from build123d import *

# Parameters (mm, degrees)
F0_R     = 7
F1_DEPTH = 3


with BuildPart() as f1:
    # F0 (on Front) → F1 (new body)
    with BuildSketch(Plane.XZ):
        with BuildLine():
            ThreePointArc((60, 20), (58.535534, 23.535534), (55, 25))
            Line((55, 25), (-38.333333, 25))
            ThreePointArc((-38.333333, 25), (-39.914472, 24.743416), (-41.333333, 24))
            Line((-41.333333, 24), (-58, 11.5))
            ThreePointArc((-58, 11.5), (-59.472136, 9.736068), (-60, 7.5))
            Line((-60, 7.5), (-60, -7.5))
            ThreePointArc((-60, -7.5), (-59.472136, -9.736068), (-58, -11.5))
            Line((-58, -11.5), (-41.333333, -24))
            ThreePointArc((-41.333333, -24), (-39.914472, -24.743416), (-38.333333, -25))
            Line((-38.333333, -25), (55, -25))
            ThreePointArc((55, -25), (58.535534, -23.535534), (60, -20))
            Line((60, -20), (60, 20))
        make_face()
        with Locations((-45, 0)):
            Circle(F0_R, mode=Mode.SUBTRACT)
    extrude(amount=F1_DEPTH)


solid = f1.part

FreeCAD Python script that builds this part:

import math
import FreeCAD as App
import Part
import Sketcher
from FreeCAD import Vector
Q = App.Units.Quantity

doc = App.newDocument("Part")
body = doc.addObject("PartDesign::Body", "Body")

# Sketch on XZ plane
sketch1 = body.newObject("Sketcher::SketchObject", "Sketch")
sketch1.AttachmentSupport = (doc.getObject("XZ_Plane"), [""])
sketch1.MapMode = "FlatFace"
sketch1.addGeometry(Part.ArcOfCircle(Part.Circle(Vector(55, 20, 0), Vector(0, 0, 1), 5), math.radians(-0.000004), math.radians(90.000004)), False)
sketch1.addGeometry(Part.LineSegment(Vector(55, 25, 0), Vector(-38.333333, 25, 0)), False)
sketch1.addGeometry(Part.ArcOfCircle(Part.Circle(Vector(-38.33333, 19.999992, 0), Vector(0, 0, 1), 5.000008), math.radians(90.000029), math.radians(126.869869)), False)
sketch1.addGeometry(Part.LineSegment(Vector(-41.333333, 24, 0), Vector(-58, 11.5, 0)), False)
sketch1.addGeometry(Part.ArcOfCircle(Part.Circle(Vector(-55, 7.5, 0), Vector(0, 0, 1), 5), math.radians(126.869895), math.radians(180.000002)), False)
sketch1.addGeometry(Part.LineSegment(Vector(-60, 7.5, 0), Vector(-60, -7.5, 0)), False)
sketch1.addGeometry(Part.ArcOfCircle(Part.Circle(Vector(-55, -7.5, 0), Vector(0, 0, 1), 5), math.radians(179.999998), math.radians(233.130105)), False)
sketch1.addGeometry(Part.LineSegment(Vector(-58, -11.5, 0), Vector(-41.333333, -24, 0)), False)
sketch1.addGeometry(Part.ArcOfCircle(Part.Circle(Vector(-38.33333, -19.999992, 0), Vector(0, 0, 1), 5.000008), math.radians(-126.869869), math.radians(-90.000029)), False)
sketch1.addGeometry(Part.LineSegment(Vector(-38.333333, -25, 0), Vector(55, -25, 0)), False)
sketch1.addGeometry(Part.ArcOfCircle(Part.Circle(Vector(55, -20, 0), Vector(0, 0, 1), 5), math.radians(-90.000004), math.radians(0.000004)), False)
sketch1.addGeometry(Part.LineSegment(Vector(60, -20, 0), Vector(60, 20, 0)), False)
sketch1.addGeometry(Part.Circle(Vector(-45, 0, 0), Vector(0, 0, 1), 7), False)
sketch1.addConstraint(Sketcher.Constraint("Tangent", 0, 2, 1, 1))
sketch1.addConstraint(Sketcher.Constraint("Tangent", 1, 2, 2, 1))
sketch1.addConstraint(Sketcher.Constraint("Tangent", 2, 2, 3, 1))
sketch1.addConstraint(Sketcher.Constraint("Tangent", 3, 2, 4, 1))
sketch1.addConstraint(Sketcher.Constraint("Tangent", 4, 2, 5, 1))
sketch1.addConstraint(Sketcher.Constraint("Tangent", 5, 2, 6, 1))
sketch1.addConstraint(Sketcher.Constraint("Tangent", 6, 2, 7, 1))
sketch1.addConstraint(Sketcher.Constraint("Tangent", 7, 2, 8, 1))
sketch1.addConstraint(Sketcher.Constraint("Tangent", 8, 2, 9, 1))
sketch1.addConstraint(Sketcher.Constraint("Tangent", 9, 2, 10, 1))
sketch1.addConstraint(Sketcher.Constraint("Tangent", 10, 2, 11, 1))
sketch1.addConstraint(Sketcher.Constraint("Tangent", 11, 2, 0, 1))
sketch1.addConstraint(Sketcher.Constraint("Horizontal", 1))
sketch1.addConstraint(Sketcher.Constraint("Vertical", 5))
sketch1.addConstraint(Sketcher.Constraint("Horizontal", 9))
sketch1.addConstraint(Sketcher.Constraint("Vertical", 11))
sketch1.addConstraint(Sketcher.Constraint("Equal", 0, 4))
sketch1.addConstraint(Sketcher.Constraint("Equal", 4, 6))
sketch1.addConstraint(Sketcher.Constraint("Equal", 2, 8))
sketch1.addConstraint(Sketcher.Constraint("Equal", 6, 10))
sketch1.addConstraint(Sketcher.Constraint("Symmetric", 2, 3, 8, 3, -1))
sketch1.addConstraint(Sketcher.Constraint("PointOnObject", 12, 3, -1))
sketch1.addConstraint(Sketcher.Constraint("Vertical", 3, 2, 6, 2))
sketch1.addConstraint(Sketcher.Constraint("Diameter", 12, Q("14 mm")))
sketch1.addConstraint(Sketcher.Constraint("Radius", 0, Q("5 mm")))
sketch1.addConstraint(Sketcher.Constraint("DistanceY", 5, 2, 5, 1, Q("15 mm")))
sketch1.addConstraint(Sketcher.Constraint("DistanceY", 11, 1, 11, 2, Q("40 mm")))
sketch1.addConstraint(Sketcher.Constraint("DistanceX", -1, 1, 0, 3, Q("55 mm")))
sketch1.addConstraint(Sketcher.Constraint("DistanceX", 4, 3, -1, 1, Q("55 mm")))
sketch1.addConstraint(Sketcher.Constraint("DistanceX", 12, 3, -1, 1, Q("45 mm")))
sketch1.addConstraint(Sketcher.Constraint("DistanceY", -1, 1, 2, 2, Q("24 mm")))
sketch1.addConstraint(Sketcher.Constraint("DistanceX", 3, 2, -1, 1, Q("58 mm")))
pad1 = body.newObject("PartDesign::Pad", "Pad")
pad1.Profile = sketch1
pad1.Length = 3

doc.recompute()
